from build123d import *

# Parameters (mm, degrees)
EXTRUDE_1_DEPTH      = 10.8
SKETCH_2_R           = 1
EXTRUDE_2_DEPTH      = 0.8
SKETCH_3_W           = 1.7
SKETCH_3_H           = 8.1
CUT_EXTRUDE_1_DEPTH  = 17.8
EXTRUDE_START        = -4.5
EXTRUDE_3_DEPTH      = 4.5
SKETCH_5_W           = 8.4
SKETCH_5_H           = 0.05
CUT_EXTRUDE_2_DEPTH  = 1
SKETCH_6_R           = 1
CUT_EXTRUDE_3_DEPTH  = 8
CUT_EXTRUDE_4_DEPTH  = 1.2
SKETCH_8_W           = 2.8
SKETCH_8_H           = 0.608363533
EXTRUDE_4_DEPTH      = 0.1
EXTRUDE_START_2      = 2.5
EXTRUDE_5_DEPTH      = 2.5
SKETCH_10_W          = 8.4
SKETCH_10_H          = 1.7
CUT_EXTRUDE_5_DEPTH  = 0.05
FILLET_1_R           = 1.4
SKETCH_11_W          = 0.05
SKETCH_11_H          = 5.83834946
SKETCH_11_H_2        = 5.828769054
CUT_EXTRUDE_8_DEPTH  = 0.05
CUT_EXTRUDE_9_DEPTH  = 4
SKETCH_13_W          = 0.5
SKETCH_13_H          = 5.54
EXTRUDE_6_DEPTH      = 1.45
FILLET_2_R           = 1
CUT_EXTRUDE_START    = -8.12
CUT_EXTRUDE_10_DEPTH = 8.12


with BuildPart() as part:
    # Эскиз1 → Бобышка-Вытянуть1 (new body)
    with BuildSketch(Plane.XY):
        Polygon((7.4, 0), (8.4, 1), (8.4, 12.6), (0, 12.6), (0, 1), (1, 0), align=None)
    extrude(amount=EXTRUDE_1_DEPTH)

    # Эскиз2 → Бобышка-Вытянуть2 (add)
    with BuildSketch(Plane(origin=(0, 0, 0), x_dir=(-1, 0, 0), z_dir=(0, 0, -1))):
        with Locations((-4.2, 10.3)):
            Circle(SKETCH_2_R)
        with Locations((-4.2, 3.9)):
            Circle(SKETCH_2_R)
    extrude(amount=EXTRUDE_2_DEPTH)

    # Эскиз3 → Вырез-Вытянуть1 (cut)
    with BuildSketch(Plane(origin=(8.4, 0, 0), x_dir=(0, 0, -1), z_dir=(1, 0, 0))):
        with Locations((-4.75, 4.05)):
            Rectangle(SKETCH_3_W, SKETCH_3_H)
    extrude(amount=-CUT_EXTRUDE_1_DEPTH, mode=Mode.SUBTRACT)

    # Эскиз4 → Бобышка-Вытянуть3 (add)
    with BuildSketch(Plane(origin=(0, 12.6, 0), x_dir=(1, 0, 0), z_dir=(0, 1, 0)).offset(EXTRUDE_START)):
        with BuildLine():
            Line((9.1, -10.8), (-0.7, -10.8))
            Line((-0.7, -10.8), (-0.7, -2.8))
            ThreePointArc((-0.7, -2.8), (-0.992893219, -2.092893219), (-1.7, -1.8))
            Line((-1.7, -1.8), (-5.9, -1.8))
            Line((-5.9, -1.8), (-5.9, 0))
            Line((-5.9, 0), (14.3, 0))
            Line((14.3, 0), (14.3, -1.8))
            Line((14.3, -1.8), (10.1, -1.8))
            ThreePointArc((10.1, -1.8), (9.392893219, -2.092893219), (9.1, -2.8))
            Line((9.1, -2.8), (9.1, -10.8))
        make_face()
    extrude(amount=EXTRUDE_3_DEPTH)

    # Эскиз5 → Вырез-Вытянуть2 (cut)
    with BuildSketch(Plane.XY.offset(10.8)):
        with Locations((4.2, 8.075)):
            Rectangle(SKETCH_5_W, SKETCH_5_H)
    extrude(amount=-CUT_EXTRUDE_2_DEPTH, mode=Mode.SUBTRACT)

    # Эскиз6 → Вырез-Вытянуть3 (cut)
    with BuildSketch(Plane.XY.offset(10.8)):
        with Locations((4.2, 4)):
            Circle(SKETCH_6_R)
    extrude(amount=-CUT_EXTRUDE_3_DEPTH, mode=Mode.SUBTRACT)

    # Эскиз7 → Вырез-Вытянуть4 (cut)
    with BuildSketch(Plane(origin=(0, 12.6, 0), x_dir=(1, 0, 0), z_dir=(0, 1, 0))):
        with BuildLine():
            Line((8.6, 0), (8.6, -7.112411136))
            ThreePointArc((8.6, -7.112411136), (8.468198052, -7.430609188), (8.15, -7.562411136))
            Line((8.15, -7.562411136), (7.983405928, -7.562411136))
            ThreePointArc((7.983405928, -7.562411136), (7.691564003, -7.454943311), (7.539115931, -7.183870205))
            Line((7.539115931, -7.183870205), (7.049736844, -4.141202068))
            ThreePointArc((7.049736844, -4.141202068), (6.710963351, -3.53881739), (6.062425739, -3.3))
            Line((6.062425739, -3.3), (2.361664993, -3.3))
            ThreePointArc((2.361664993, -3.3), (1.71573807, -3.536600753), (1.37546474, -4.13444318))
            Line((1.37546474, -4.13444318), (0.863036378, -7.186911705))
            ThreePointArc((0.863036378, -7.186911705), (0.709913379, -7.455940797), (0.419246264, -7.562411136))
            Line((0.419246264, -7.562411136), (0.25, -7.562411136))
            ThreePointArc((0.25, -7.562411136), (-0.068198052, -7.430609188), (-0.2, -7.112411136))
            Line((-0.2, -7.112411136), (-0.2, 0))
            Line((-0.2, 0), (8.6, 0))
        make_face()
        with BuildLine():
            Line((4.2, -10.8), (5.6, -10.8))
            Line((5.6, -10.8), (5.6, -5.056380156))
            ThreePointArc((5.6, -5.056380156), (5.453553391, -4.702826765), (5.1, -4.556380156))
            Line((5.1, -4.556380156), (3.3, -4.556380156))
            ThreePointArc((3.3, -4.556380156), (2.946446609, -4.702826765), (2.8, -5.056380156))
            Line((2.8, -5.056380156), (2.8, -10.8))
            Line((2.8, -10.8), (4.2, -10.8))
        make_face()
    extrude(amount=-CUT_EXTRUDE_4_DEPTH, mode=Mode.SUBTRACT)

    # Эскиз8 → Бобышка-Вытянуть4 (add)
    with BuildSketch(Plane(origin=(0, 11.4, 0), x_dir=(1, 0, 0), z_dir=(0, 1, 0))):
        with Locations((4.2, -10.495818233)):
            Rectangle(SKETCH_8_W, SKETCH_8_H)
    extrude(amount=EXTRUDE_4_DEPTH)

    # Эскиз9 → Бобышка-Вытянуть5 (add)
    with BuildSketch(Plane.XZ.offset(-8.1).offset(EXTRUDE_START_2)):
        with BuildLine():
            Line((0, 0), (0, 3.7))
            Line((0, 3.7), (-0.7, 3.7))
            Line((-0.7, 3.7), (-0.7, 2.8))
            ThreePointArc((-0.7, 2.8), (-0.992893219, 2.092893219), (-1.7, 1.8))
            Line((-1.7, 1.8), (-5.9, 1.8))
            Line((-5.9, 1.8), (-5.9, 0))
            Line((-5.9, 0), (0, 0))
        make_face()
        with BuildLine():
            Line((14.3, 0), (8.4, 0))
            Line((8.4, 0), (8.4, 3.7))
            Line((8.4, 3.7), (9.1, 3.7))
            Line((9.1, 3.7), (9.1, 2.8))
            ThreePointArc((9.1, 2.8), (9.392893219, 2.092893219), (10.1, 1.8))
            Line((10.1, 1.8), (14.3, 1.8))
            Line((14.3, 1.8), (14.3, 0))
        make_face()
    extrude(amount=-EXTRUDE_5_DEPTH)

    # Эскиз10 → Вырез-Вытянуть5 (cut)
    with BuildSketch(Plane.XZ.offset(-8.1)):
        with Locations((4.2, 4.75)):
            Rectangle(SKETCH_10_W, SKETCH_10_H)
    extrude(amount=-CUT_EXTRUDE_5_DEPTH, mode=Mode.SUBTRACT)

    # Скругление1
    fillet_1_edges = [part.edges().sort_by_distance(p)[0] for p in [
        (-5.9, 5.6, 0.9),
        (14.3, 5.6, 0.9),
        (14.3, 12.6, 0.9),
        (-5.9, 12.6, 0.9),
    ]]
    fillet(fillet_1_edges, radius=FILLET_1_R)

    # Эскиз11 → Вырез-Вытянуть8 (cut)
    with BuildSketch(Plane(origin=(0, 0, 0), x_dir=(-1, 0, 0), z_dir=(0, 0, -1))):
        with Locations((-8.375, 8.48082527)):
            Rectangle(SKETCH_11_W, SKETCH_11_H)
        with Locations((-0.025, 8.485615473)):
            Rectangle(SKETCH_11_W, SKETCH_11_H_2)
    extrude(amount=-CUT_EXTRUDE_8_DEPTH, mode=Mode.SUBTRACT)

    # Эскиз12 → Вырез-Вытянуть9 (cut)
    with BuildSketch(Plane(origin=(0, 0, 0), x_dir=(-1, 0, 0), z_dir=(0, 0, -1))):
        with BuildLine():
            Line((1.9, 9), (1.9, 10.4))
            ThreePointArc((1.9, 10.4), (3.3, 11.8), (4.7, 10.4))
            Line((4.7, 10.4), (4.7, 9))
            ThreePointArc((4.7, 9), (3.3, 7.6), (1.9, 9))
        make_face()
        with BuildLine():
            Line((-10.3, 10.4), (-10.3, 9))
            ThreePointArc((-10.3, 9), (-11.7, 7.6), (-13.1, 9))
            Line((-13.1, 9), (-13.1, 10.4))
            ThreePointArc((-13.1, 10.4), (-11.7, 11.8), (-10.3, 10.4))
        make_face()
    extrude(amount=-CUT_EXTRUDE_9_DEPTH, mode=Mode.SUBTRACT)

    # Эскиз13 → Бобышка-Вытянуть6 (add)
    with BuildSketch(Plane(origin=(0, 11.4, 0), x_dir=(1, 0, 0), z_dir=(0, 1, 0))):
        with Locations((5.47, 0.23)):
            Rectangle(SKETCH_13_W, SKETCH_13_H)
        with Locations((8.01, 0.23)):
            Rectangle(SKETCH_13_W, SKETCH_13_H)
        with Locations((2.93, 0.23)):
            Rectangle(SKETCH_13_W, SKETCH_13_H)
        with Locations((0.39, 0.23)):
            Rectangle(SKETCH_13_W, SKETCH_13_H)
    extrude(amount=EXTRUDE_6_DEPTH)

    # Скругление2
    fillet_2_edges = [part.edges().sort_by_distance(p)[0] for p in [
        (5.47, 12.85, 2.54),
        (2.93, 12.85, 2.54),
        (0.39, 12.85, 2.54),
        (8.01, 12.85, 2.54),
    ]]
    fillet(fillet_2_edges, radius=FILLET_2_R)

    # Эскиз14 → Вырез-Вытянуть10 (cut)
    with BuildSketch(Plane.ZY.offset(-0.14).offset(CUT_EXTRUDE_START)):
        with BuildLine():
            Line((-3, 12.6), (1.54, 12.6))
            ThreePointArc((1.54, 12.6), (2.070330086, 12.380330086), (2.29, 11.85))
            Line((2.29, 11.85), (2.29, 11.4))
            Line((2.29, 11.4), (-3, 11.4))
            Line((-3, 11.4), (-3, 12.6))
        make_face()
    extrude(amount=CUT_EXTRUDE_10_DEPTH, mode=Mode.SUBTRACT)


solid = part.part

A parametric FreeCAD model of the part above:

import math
import FreeCAD as App
import Part
import Sketcher

V = App.Vector
Q = App.Units.Quantity


def edges_at(feature, points):
    """Names of the edges that pass closest to the given points."""
    edges = feature.Shape.Edges
    near = lambda p: min(range(len(edges)), key=lambda i: edges[i].distToShape(Part.Vertex(*p))[0])
    return sorted({f"Edge{near(p) + 1}" for p in points})

doc = App.newDocument("Part")
body = doc.addObject("PartDesign::Body", "Body")

# Sketch on XY plane
sketch1 = body.newObject("Sketcher::SketchObject", "Sketch")
sketch1.AttachmentSupport = (doc.getObject("XY_Plane"), [""])
sketch1.MapMode = "FlatFace"
sketch1.addGeometry([
    Part.LineSegment(V(7.4, 0, 0), V(8.4, 1, 0)),  # 0
    Part.LineSegment(V(8.4, 1, 0), V(8.4, 12.6, 0)),  # 1
    Part.LineSegment(V(8.4, 12.6, 0), V(0, 12.6, 0)),  # 2
    Part.LineSegment(V(0, 12.6, 0), V(0, 1, 0)),  # 3
    Part.LineSegment(V(0, 1, 0), V(1, 0, 0)),  # 4
    Part.LineSegment(V(1, 0, 0), V(7.4, 0, 0)),  # 5
], False)
sketch1.addConstraint([
    Sketcher.Constraint("Coincident", 0, 2, 1, 1),
    Sketcher.Constraint("Coincident", 1, 2, 2, 1),
    Sketcher.Constraint("Coincident", 2, 2, 3, 1),
    Sketcher.Constraint("Coincident", 3, 2, 4, 1),
    Sketcher.Constraint("Coincident", 4, 2, 5, 1),
    Sketcher.Constraint("Coincident", 5, 2, 0, 1),
    Sketcher.Constraint("Vertical", 1),
    Sketcher.Constraint("Horizontal", 2),
    Sketcher.Constraint("Vertical", 3),
    Sketcher.Constraint("Horizontal", 5),
    Sketcher.Constraint("PointOnObject", 2, 2, -2),
    Sketcher.Constraint("PointOnObject", 4, 2, -1),
    Sketcher.Constraint("Perpendicular", 0, 4),
    Sketcher.Constraint("Horizontal", 0, 2, 3, 2),
    Sketcher.Constraint("Equal", 0, 4),
    Sketcher.Constraint("DistanceX", 2, 2, 2, 1, Q("8.4 mm")),
    Sketcher.Constraint("DistanceX", 5, 1, 5, 2, Q("6.4 mm")),
    Sketcher.Constraint("DistanceY", 1, 1, 1, 2, Q("11.6 mm")),
])
pad1 = body.newObject("PartDesign::Pad", "Pad")
pad1.Profile = sketch1
pad1.Length = 10.8

# Sketch on XY plane
sketch2 = body.newObject("Sketcher::SketchObject", "Sketch001")
sketch2.AttachmentSupport = (doc.getObject("XY_Plane"), [""])
sketch2.MapMode = "FlatFace"
sketch2.addGeometry([
    Part.Circle(V(4.2, 10.3, 0), V(0, 0, 1), 1),
    Part.Circle(V(4.2, 3.9, 0), V(0, 0, 1), 1),
], False)
sketch2.addConstraint([
    Sketcher.Constraint("Equal", 0, 1),
    Sketcher.Constraint("Vertical", 0, 3, 1, 3),
    Sketcher.Constraint("Diameter", 0, Q("2 mm")),
    Sketcher.Constraint("DistanceX", -1, 1, 0, 3, Q("4.2 mm")),
    Sketcher.Constraint("DistanceY", -1, 1, 0, 3, Q("10.3 mm")),
    Sketcher.Constraint("DistanceY", -1, 1, 1, 3, Q("3.9 mm")),
])
pad2 = body.newObject("PartDesign::Pad", "Pad001")
pad2.Profile = sketch2
pad2.Length = 0.8
pad2.Reversed = True

# Sketch on YZ plane
sketch3 = body.newObject("Sketcher::SketchObject", "Sketch002")
sketch3.AttachmentSupport = (doc.getObject("YZ_Plane"), [""])
sketch3.MapMode = "FlatFace"
sketch3.AttachmentOffset = App.Placement(V(0, 0, 8.4), App.Rotation())
sketch3.addGeometry([
    Part.LineSegment(V(8.1, 5.6, 0), V(0, 5.6, 0)),
    Part.LineSegment(V(0, 5.6, 0), V(0, 3.9, 0)),
    Part.LineSegment(V(0, 3.9, 0), V(8.1, 3.9, 0)),
    Part.LineSegment(V(8.1, 3.9, 0), V(8.1, 5.6, 0)),
], False)
sketch3.addConstraint([
    Sketcher.Constraint("Coincident", 0, 2, 1, 1),
    Sketcher.Constraint("Coincident", 1, 2, 2, 1),
    Sketcher.Constraint("Coincident", 2, 2, 3, 1),
    Sketcher.Constraint("Coincident", 3, 2, 0, 1),
    Sketcher.Constraint("Horizontal", 0),
    Sketcher.Constraint("Vertical", 1),
    Sketcher.Constraint("Horizontal", 2),
    Sketcher.Constraint("Vertical", 3),
    Sketcher.Constraint("PointOnObject", 0, 2, -2),
    Sketcher.Constraint("DistanceX", 0, 2, 0, 1, Q("8.1 mm")),
    Sketcher.Constraint("DistanceY", 1, 2, 1, 1, Q("1.7 mm")),
    Sketcher.Constraint("DistanceY", -1, 1, 0, 2, Q("5.6 mm")),
])
pocket1 = body.newObject("PartDesign::Pocket", "Pocket")
pocket1.Profile = sketch3
pocket1.Length = 17.8

# Sketch on XZ plane
sketch4 = body.newObject("Sketcher::SketchObject", "Sketch003")
sketch4.AttachmentSupport = (doc.getObject("XZ_Plane"), [""])
sketch4.MapMode = "FlatFace"
sketch4.AttachmentOffset = App.Placement(V(0, 0, -8.1), App.Rotation())
sketch4.addGeometry([
    Part.LineSegment(V(-0.7, 10.8, 0), V(9.1, 10.8, 0)),  # 0
    Part.LineSegment(V(9.1, 10.8, 0), V(9.1, 2.8, 0)),  # 1
    Part.ArcOfCircle(Part.Circle(V(10.1, 2.8, 0), V(0, 0, 1), 1), math.radians(-180), math.radians(-90)),  # 2
    Part.LineSegment(V(10.1, 1.8, 0), V(14.3, 1.8, 0)),  # 3
    Part.LineSegment(V(14.3, 1.8, 0), V(14.3, 0, 0)),  # 4
    Part.LineSegment(V(14.3, 0, 0), V(-5.9, 0, 0)),  # 5
    Part.LineSegment(V(-5.9, 0, 0), V(-5.9, 1.8, 0)),  # 6
    Part.LineSegment(V(-5.9, 1.8, 0), V(-1.7, 1.8, 0)),  # 7
    Part.ArcOfCircle(Part.Circle(V(-1.7, 2.8, 0), V(0, 0, 1), 1), math.radians(-90), math.radians(0)),  # 8
    Part.LineSegment(V(-0.7, 2.8, 0), V(-0.7, 10.8, 0)),  # 9
], False)
sketch4.addConstraint([
    Sketcher.Constraint("Coincident", 0, 2, 1, 1),
    Sketcher.Constraint("Tangent", 1, 2, 2, 1),
    Sketcher.Constraint("Tangent", 2, 2, 3, 1),
    Sketcher.Constraint("Coincident", 3, 2, 4, 1),
    Sketcher.Constraint("Coincident", 4, 2, 5, 1),
    Sketcher.Constraint("Coincident", 5, 2, 6, 1),
    Sketcher.Constraint("Coincident", 6, 2, 7, 1),
    Sketcher.Constraint("Tangent", 7, 2, 8, 1),
    Sketcher.Constraint("Tangent", 8, 2, 9, 1),
    Sketcher.Constraint("Coincident", 9, 2, 0, 1),
    Sketcher.Constraint("Horizontal", 0),
    Sketcher.Constraint("Vertical", 1),
    Sketcher.Constraint("Horizontal", 3),
    Sketcher.Constraint("Vertical", 4),
    Sketcher.Constraint("Horizontal", 5),
    Sketcher.Constraint("Vertical", 6),
    Sketcher.Constraint("Horizontal", 7),
    Sketcher.Constraint("Vertical", 9),
    Sketcher.Constraint("Equal", 2, 8),
    Sketcher.Constraint("PointOnObject", 4, 2, -1),
    Sketcher.Constraint("Horizontal", 2, 3, 8, 3),
    Sketcher.Constraint("Equal", 3, 7),
    Sketcher.Constraint("Radius", 2, Q("1 mm")),
    Sketcher.Constraint("DistanceY", 1, 2, 1, 1, Q("8 mm")),
    Sketcher.Constraint("DistanceX", 0, 1, 0, 2, Q("9.8 mm")),
    Sketcher.Constraint("DistanceX", 3, 1, 3, 2, Q("4.2 mm")),
    Sketcher.Constraint("DistanceY", 4, 2, 4, 1, Q("1.8 mm")),
    Sketcher.Constraint("DistanceX", -1, 1, 2, 3, Q("10.1 mm")),
])
pad3 = body.newObject("PartDesign::Pad", "Pad002")
pad3.Profile = sketch4
pad3.Length = 4.5
pad3.Reversed = True

# Sketch on XY plane
sketch5 = body.newObject("Sketcher::SketchObject", "Sketch004")
sketch5.AttachmentSupport = (doc.getObject("XY_Plane"), [""])
sketch5.MapMode = "FlatFace"
sketch5.AttachmentOffset = App.Placement(V(0, 0, 10.8), App.Rotation())
sketch5.addGeometry([
    Part.LineSegment(V(0, 8.1, 0), V(0, 8.05, 0)),
    Part.LineSegment(V(0, 8.05, 0), V(8.4, 8.05, 0)),
    Part.LineSegment(V(8.4, 8.05, 0), V(8.4, 8.1, 0)),
    Part.LineSegment(V(8.4, 8.1, 0), V(0, 8.1, 0)),
], False)
sketch5.addConstraint([
    Sketcher.Constraint("Coincident", 0, 2, 1, 1),
    Sketcher.Constraint("Coincident", 1, 2, 2, 1),
    Sketcher.Constraint("Coincident", 2, 2, 3, 1),
    Sketcher.Constraint("Coincident", 3, 2, 0, 1),
    Sketcher.Constraint("Vertical", 0),
    Sketcher.Constraint("Horizontal", 1),
    Sketcher.Constraint("Vertical", 2),
    Sketcher.Constraint("Horizontal", 3),
    Sketcher.Constraint("PointOnObject", 0, 2, -2),
    Sketcher.Constraint("DistanceX", 1, 1, 1, 2, Q("8.4 mm")),
    Sketcher.Constraint("DistanceY", 0, 2, 0, 1, Q("0.05 mm")),
    Sketcher.Constraint("DistanceY", -1, 1, 2, 2, Q("8.1 mm")),
])
pocket2 = body.newObject("PartDesign::Pocket", "Pocket001")
pocket2.Profile = sketch5
pocket2.Length = 1

# Sketch on XY plane
sketch6 = body.newObject("Sketcher::SketchObject", "Sketch005")
sketch6.AttachmentSupport = (doc.getObject("XY_Plane"), [""])
sketch6.MapMode = "FlatFace"
sketch6.AttachmentOffset = App.Placement(V(0, 0, 10.8), App.Rotation())
sketch6.addGeometry(Part.Circle(V(4.2, 4, 0), V(0, 0, 1), 1), False)
sketch6.addConstraint([
    Sketcher.Constraint("Diameter", 0, Q("2 mm")),
    Sketcher.Constraint("DistanceY", -1, 1, 0, 3, Q("4 mm")),
    Sketcher.Constraint("DistanceX", -1, 1, 0, 3, Q("4.2 mm")),
])
pocket3 = body.newObject("PartDesign::Pocket", "Pocket002")
pocket3.Profile = sketch6
pocket3.Length = 8

# Sketch on XZ plane
sketch7 = body.newObject("Sketcher::SketchObject", "Sketch006")
sketch7.AttachmentSupport = (doc.getObject("XZ_Plane"), [""])
sketch7.MapMode = "FlatFace"
sketch7.AttachmentOffset = App.Placement(V(0, 0, -12.6), App.Rotation())
sketch7.addGeometry([
    Part.LineSegment(V(8.6, 7.11, 0), V(8.6, 0, 0)),  # 0
    Part.LineSegment(V(8.6, 0, 0), V(-0.2, 0, 0)),  # 1
    Part.LineSegment(V(-0.2, 0, 0), V(-0.2, 7.11, 0)),  # 2
    Part.ArcOfCircle(Part.Circle(V(0.25, 7.11, 0), V(0, 0, 1), 0.45), math.radians(90), math.radians(180)),  # 3
    Part.LineSegment(V(0.25, 7.56, 0), V(0.42, 7.56, 0)),  # 4
    Part.ArcOfCircle(Part.Circle(V(0.42, 7.11, 0), V(0, 0, 1), 0.45), math.radians(10), math.radians(90)),  # 5
    Part.LineSegment(V(0.86, 7.19, 0), V(1.38, 4.13, 0)),  # 6
    Part.ArcOfCircle(Part.Circle(V(2.36, 4.3, 0), V(0, 0, 1), 1), math.radians(-170), math.radians(-90)),  # 7
    Part.LineSegment(V(2.36, 3.3, 0), V(6.06, 3.3, 0)),  # 8
    Part.ArcOfCircle(Part.Circle(V(6.06, 4.3, 0), V(0, 0, 1), 1), math.radians(-90), math.radians(-9)),  # 9
    Part.LineSegment(V(7.05, 4.14, 0), V(7.54, 7.18, 0)),  # 10
    Part.ArcOfCircle(Part.Circle(V(7.98, 7.11, 0), V(0, 0, 1), 0.45), math.radians(90), math.radians(171)),  # 11
    Part.LineSegment(V(7.98, 7.56, 0), V(8.15, 7.56, 0)),  # 12
    Part.ArcOfCircle(Part.Circle(V(8.15, 7.11, 0), V(0, 0, 1), 0.45), math.radians(0), math.radians(90)),  # 13
    Part.LineSegment(V(5.6, 10.8, 0), V(5.6, 5.06, 0)),  # 14
    Part.ArcOfCircle(Part.Circle(V(5.1, 5.06, 0), V(0, 0, 1), 0.5), math.radians(-90), math.radians(0)),  # 15
    Part.LineSegment(V(5.1, 4.56, 0), V(3.3, 4.56, 0)),  # 16
    Part.ArcOfCircle(Part.Circle(V(3.3, 5.06, 0), V(0, 0, 1), 0.5), math.radians(180), math.radians(270)),  # 17
    Part.LineSegment(V(2.8, 5.06, 0), V(2.8, 10.8, 0)),  # 18
    Part.LineSegment(V(2.8, 10.8, 0), V(5.6, 10.8, 0)),  # 19
], False)
sketch7.addConstraint([
    Sketcher.Constraint("Coincident", 0, 2, 1, 1),
    Sketcher.Constraint("Coincident", 1, 2, 2, 1),
    Sketcher.Constraint("Tangent", 2, 2, 3, 2),
    Sketcher.Constraint("Tangent", 3, 1, 4, 1),
    Sketcher.Constraint("Tangent", 4, 2, 5, 2),
    Sketcher.Constraint("Tangent", 5, 1, 6, 1),
    Sketcher.Constraint("Tangent", 6, 2, 7, 1),
    Sketcher.Constraint("Tangent", 7, 2, 8, 1),
    Sketcher.Constraint("Tangent", 8, 2, 9, 1),
    Sketcher.Constraint("Tangent", 9, 2, 10, 1),
    Sketcher.Constraint("Tangent", 10, 2, 11, 2),
    Sketcher.Constraint("Tangent", 11, 1, 12, 1),
    Sketcher.Constraint("Tangent", 12, 2, 13, 2),
    Sketcher.Constraint("Tangent", 13, 1, 0, 1),
    Sketcher.Constraint("Tangent", 14, 2, 15, 2),
    Sketcher.Constraint("Tangent", 15, 1, 16, 1),
    Sketcher.Constraint("Tangent", 16, 2, 17, 2),
    Sketcher.Constraint("Tangent", 17, 1, 18, 1),
    Sketcher.Constraint("Coincident", 18, 2, 19, 1),
    Sketcher.Constraint("Coincident", 19, 2, 14, 1),
    Sketcher.Constraint("Vertical", 0),
    Sketcher.Constraint("Horizontal", 1),
    Sketcher.Constraint("Vertical", 2),
    Sketcher.Constraint("Horizontal", 4),
    Sketcher.Constraint("Horizontal", 8),
    Sketcher.Constraint("Horizontal", 12),
    Sketcher.Constraint("Vertical", 14),
    Sketcher.Constraint("Horizontal", 16),
    Sketcher.Constraint("Vertical", 18),
    Sketcher.Constraint("Horizontal", 19),
    Sketcher.Constraint("Equal", 3, 5),
    Sketcher.Constraint("Equal", 7, 9),
    Sketcher.Constraint("Equal", 5, 11),
    Sketcher.Constraint("Equal", 11, 13),
    Sketcher.Constraint("Equal", 15, 17),
    Sketcher.Constraint("PointOnObject", 0, 2, -1),
    Sketcher.Constraint("Horizontal", 5, 3, 11, 3),
    Sketcher.Constraint("Radius", 7, Q("1 mm")),
    Sketcher.Constraint("Radius", 15, Q("0.5 mm")),
    Sketcher.Constraint("Radius", 3, Q("0.45 mm")),
    Sketcher.Constraint("DistanceX", 1, 2, 1, 1, Q("8.8 mm")),
    Sketcher.Constraint("DistanceX", 16, 2, 16, 1, Q("1.8 mm")),
    Sketcher.Constraint("DistanceY", -1, 1, 7, 3, Q("4.3 mm")),
    Sketcher.Constraint("DistanceX", -1, 1, 15, 3, Q("5.1 mm")),
    Sketcher.Constraint("DistanceX", -1, 1, 0, 2, Q("8.6 mm")),
    Sketcher.Constraint("DistanceY", -1, 1, 18, 2, Q("10.8 mm")),
    Sketcher.Constraint("DistanceX", 8, 1, 8, 2, Q("3.700761 mm")),
    Sketcher.Constraint("DistanceY", 0, 2, 0, 1, Q("7.112411 mm")),
    Sketcher.Constraint("DistanceY", 14, 2, 14, 1, Q("5.74362 mm")),
    Sketcher.Constraint("DistanceY", 5, 3, 5, 1, Q("0.074501 mm")),
    Sketcher.Constraint("DistanceX", 4, 1, 4, 2, Q("0.169246 mm")),
    Sketcher.Constraint("DistanceX", 12, 1, 12, 2, Q("0.166594 mm")),
])
pocket4 = body.newObject("PartDesign::Pocket", "Pocket003")
pocket4.Profile = sketch7
pocket4.Length = 1.2
pocket4.Reversed = True

# Sketch on XZ plane
sketch8 = body.newObject("Sketcher::SketchObject", "Sketch007")
sketch8.AttachmentSupport = (doc.getObject("XZ_Plane"), [""])
sketch8.MapMode = "FlatFace"
sketch8.AttachmentOffset = App.Placement(V(0, 0, -11.4), App.Rotation())
sketch8.addGeometry([
    Part.LineSegment(V(2.8, 10.2, 0), V(2.8, 10.8, 0)),
    Part.LineSegment(V(2.8, 10.8, 0), V(5.6, 10.8, 0)),
    Part.LineSegment(V(5.6, 10.8, 0), V(5.6, 10.2, 0)),
    Part.LineSegment(V(5.6, 10.2, 0), V(2.8, 10.2, 0)),
], False)
sketch8.addConstraint([
    Sketcher.Constraint("Coincident", 0, 2, 1, 1),
    Sketcher.Constraint("Coincident", 1, 2, 2, 1),
    Sketcher.Constraint("Coincident", 2, 2, 3, 1),
    Sketcher.Constraint("Coincident", 3, 2, 0, 1),
    Sketcher.Constraint("Vertical", 0),
    Sketcher.Constraint("Horizontal", 1),
    Sketcher.Constraint("Vertical", 2),
    Sketcher.Constraint("Horizontal", 3),
    Sketcher.Constraint("DistanceX", 1, 1, 1, 2, Q("2.8 mm")),
    Sketcher.Constraint("DistanceX", -1, 1, 0, 2, Q("2.8 mm")),
    Sketcher.Constraint("DistanceY", -1, 1, 0, 2, Q("10.8 mm")),
    Sketcher.Constraint("DistanceY", 0, 1, 0, 2, Q("0.608364 mm")),
])
pad4 = body.newObject("PartDesign::Pad", "Pad003")
pad4.Profile = sketch8
pad4.Length = 0.1
pad4.Reversed = True

# Sketch on XZ plane
sketch9 = body.newObject("Sketcher::SketchObject", "Sketch008")
sketch9.AttachmentSupport = (doc.getObject("XZ_Plane"), [""])
sketch9.MapMode = "FlatFace"
sketch9.AttachmentOffset = App.Placement(V(0, 0, -5.6), App.Rotation())
sketch9.addGeometry([
    Part.LineSegment(V(0, 0, 0), V(0, 3.7, 0)),  # 0
    Part.LineSegment(V(0, 3.7, 0), V(-0.7, 3.7, 0)),  # 1
    Part.LineSegment(V(-0.7, 3.7, 0), V(-0.7, 2.8, 0)),  # 2
    Part.ArcOfCircle(Part.Circle(V(-1.7, 2.8, 0), V(0, 0, 1), 1), math.radians(-90), math.radians(0)),  # 3
    Part.LineSegment(V(-1.7, 1.8, 0), V(-5.9, 1.8, 0)),  # 4
    Part.LineSegment(V(-5.9, 1.8, 0), V(-5.9, 0, 0)),  # 5
    Part.LineSegment(V(-5.9, 0, 0), V(0, 0, 0)),  # 6
    Part.LineSegment(V(8.4, 0, 0), V(14.3, 0, 0)),  # 7
    Part.LineSegment(V(14.3, 0, 0), V(14.3, 1.8, 0)),  # 8
    Part.LineSegment(V(14.3, 1.8, 0), V(10.1, 1.8, 0)),  # 9
    Part.ArcOfCircle(Part.Circle(V(10.1, 2.8, 0), V(0, 0, 1), 1), math.radians(-180), math.radians(-90)),  # 10
    Part.LineSegment(V(9.1, 2.8, 0), V(9.1, 3.7, 0)),  # 11
    Part.LineSegment(V(9.1, 3.7, 0), V(8.4, 3.7, 0)),  # 12
    Part.LineSegment(V(8.4, 3.7, 0), V(8.4, 0, 0)),  # 13
], False)
sketch9.addConstraint([
    Sketcher.Constraint("Coincident", 0, 2, 1, 1),
    Sketcher.Constraint("Coincident", 1, 2, 2, 1),
    Sketcher.Constraint("Tangent", 2, 2, 3, 2),
    Sketcher.Constraint("Tangent", 3, 1, 4, 1),
    Sketcher.Constraint("Coincident", 4, 2, 5, 1),
    Sketcher.Constraint("Coincident", 5, 2, 6, 1),
    Sketcher.Constraint("Coincident", 6, 2, 0, 1),
    Sketcher.Constraint("Coincident", 7, 2, 8, 1),
    Sketcher.Constraint("Coincident", 8, 2, 9, 1),
    Sketcher.Constraint("Tangent", 9, 2, 10, 2),
    Sketcher.Constraint("Tangent", 10, 1, 11, 1),
    Sketcher.Constraint("Coincident", 11, 2, 12, 1),
    Sketcher.Constraint("Coincident", 12, 2, 13, 1),
    Sketcher.Constraint("Coincident", 13, 2, 7, 1),
    Sketcher.Constraint("Vertical", 0),
    Sketcher.Constraint("Horizontal", 1),
    Sketcher.Constraint("Vertical", 2),
    Sketcher.Constraint("Horizontal", 4),
    Sketcher.Constraint("Vertical", 5),
    Sketcher.Constraint("Horizontal", 6),
    Sketcher.Constraint("Horizontal", 7),
    Sketcher.Constraint("Vertical", 8),
    Sketcher.Constraint("Horizontal", 9),
    Sketcher.Constraint("Vertical", 11),
    Sketcher.Constraint("Horizontal", 12),
    Sketcher.Constraint("Vertical", 13),
    Sketcher.Constraint("Coincident", 6, 2, -1, 1),
    Sketcher.Constraint("Equal", 3, 10),
    Sketcher.Constraint("PointOnObject", 7, 2, -1),
    Sketcher.Constraint("Horizontal", 3, 3, 10, 3),
    Sketcher.Constraint("Horizontal", 1, 2, 11, 2),
    Sketcher.Constraint("Equal", 6, 7),
    Sketcher.Constraint("Equal", 4, 9),
    Sketcher.Constraint("Radius", 3, Q("1 mm")),
    Sketcher.Constraint("DistanceX", 1, 2, 1, 1, Q("0.7 mm")),
    Sketcher.Constraint("DistanceX", 4, 2, 4, 1, Q("4.2 mm")),
    Sketcher.Constraint("DistanceY", 0, 1, 0, 2, Q("3.7 mm")),
    Sketcher.Constraint("DistanceY", 2, 2, 2, 1, Q("0.9 mm")),
    Sketcher.Constraint("DistanceX", 2, 2, 7, 2, Q("15 mm")),
])
pad5 = body.newObject("PartDesign::Pad", "Pad004")
pad5.Profile = sketch9
pad5.Length = 2.5
pad5.Reversed = True

# Sketch on XZ plane
sketch10 = body.newObject("Sketcher::SketchObject", "Sketch009")
sketch10.AttachmentSupport = (doc.getObject("XZ_Plane"), [""])
sketch10.MapMode = "FlatFace"
sketch10.AttachmentOffset = App.Placement(V(0, 0, -8.1), App.Rotation())
sketch10.addGeometry([
    Part.LineSegment(V(0, 5.6, 0), V(0, 3.9, 0)),
    Part.LineSegment(V(0, 3.9, 0), V(8.4, 3.9, 0)),
    Part.LineSegment(V(8.4, 3.9, 0), V(8.4, 5.6, 0)),
    Part.LineSegment(V(8.4, 5.6, 0), V(0, 5.6, 0)),
], False)
sketch10.addConstraint([
    Sketcher.Constraint("Coincident", 0, 2, 1, 1),
    Sketcher.Constraint("Coincident", 1, 2, 2, 1),
    Sketcher.Constraint("Coincident", 2, 2, 3, 1),
    Sketcher.Constraint("Coincident", 3, 2, 0, 1),
    Sketcher.Constraint("Vertical", 0),
    Sketcher.Constraint("Horizontal", 1),
    Sketcher.Constraint("Vertical", 2),
    Sketcher.Constraint("Horizontal", 3),
    Sketcher.Constraint("PointOnObject", 0, 2, -2),
    Sketcher.Constraint("DistanceX", 1, 1, 1, 2, Q("8.4 mm")),
    Sketcher.Constraint("DistanceY", 0, 2, 0, 1, Q("1.7 mm")),
    Sketcher.Constraint("DistanceY", -1, 1, 0, 2, Q("3.9 mm")),
])
pocket5 = body.newObject("PartDesign::Pocket", "Pocket004")
pocket5.Profile = sketch10
pocket5.Length = 0.05
doc.recompute()

fillet = body.newObject("PartDesign::Fillet", "Fillet")
fillet.Base = (pocket5, edges_at(pocket5, [
    (-5.9, 5.6, 0.9),
    (14.3, 5.6, 0.9),
    (14.3, 12.6, 0.9),
    (-5.9, 12.6, 0.9),
]))
fillet.Radius = 1.4

# Sketch on XY plane
sketch11 = body.newObject("Sketcher::SketchObject", "Sketch010")
sketch11.AttachmentSupport = (doc.getObject("XY_Plane"), [""])
sketch11.MapMode = "FlatFace"
sketch11.addGeometry([
    Part.LineSegment(V(8.4, 11.4, 0), V(8.4, 5.56, 0)),  # 0
    Part.LineSegment(V(8.4, 5.56, 0), V(8.35, 5.56, 0)),  # 1
    Part.LineSegment(V(8.35, 5.56, 0), V(8.35, 11.4, 0)),  # 2
    Part.LineSegment(V(8.35, 11.4, 0), V(8.4, 11.4, 0)),  # 3
    Part.LineSegment(V(0.05, 11.4, 0), V(0.05, 5.57, 0)),  # 4
    Part.LineSegment(V(0.05, 5.57, 0), V(0, 5.57, 0)),  # 5
    Part.LineSegment(V(0, 5.57, 0), V(0, 11.4, 0)),  # 6
    Part.LineSegment(V(0, 11.4, 0), V(0.05, 11.4, 0)),  # 7
], False)
sketch11.addConstraint([
    Sketcher.Constraint("Coincident", 0, 2, 1, 1),
    Sketcher.Constraint("Coincident", 1, 2, 2, 1),
    Sketcher.Constraint("Coincident", 2, 2, 3, 1),
    Sketcher.Constraint("Coincident", 3, 2, 0, 1),
    Sketcher.Constraint("Coincident", 4, 2, 5, 1),
    Sketcher.Constraint("Coincident", 5, 2, 6, 1),
    Sketcher.Constraint("Coincident", 6, 2, 7, 1),
    Sketcher.Constraint("Coincident", 7, 2, 4, 1),
    Sketcher.Constraint("Vertical", 0),
    Sketcher.Constraint("Horizontal", 1),
    Sketcher.Constraint("Vertical", 2),
    Sketcher.Constraint("Horizontal", 3),
    Sketcher.Constraint("Vertical", 4),
    Sketcher.Constraint("Horizontal", 5),
    Sketcher.Constraint("Vertical", 6),
    Sketcher.Constraint("Horizontal", 7),
    Sketcher.Constraint("PointOnObject", 5, 2, -2),
    Sketcher.Constraint("Horizontal", 3, 2, 6, 2),
    Sketcher.Constraint("Equal", 3, 5),
    Sketcher.Constraint("DistanceX", 1, 2, 1, 1, Q("0.05 mm")),
    Sketcher.Constraint("DistanceX", -1, 1, 0, 2, Q("8.4 mm")),
    Sketcher.Constraint("DistanceY", -1, 1, 2, 2, Q("11.4 mm")),
    Sketcher.Constraint("DistanceY", 0, 2, 0, 1, Q("5.838349 mm")),
    Sketcher.Constraint("DistanceY", 4, 2, 4, 1, Q("5.828769 mm")),
])
pocket6 = body.newObject("PartDesign::Pocket", "Pocket005")
pocket6.Profile = sketch11
pocket6.Length = 0.05
pocket6.Reversed = True

# Sketch on XY plane
sketch12 = body.newObject("Sketcher::SketchObject", "Sketch011")
sketch12.AttachmentSupport = (doc.getObject("XY_Plane"), [""])
sketch12.MapMode = "FlatFace"
sketch12.addGeometry([
    Part.LineSegment(V(-1.9, 10.4, 0), V(-1.9, 9, 0)),  # 0
    Part.ArcOfCircle(Part.Circle(V(-3.3, 9, 0), V(0, 0, 1), 1.4), math.radians(180), math.radians(360)),  # 1
    Part.LineSegment(V(-4.7, 9, 0), V(-4.7, 10.4, 0)),  # 2
    Part.ArcOfCircle(Part.Circle(V(-3.3, 10.4, 0), V(0, 0, 1), 1.4), math.radians(0), math.radians(180)),  # 3
    Part.LineSegment(V(10.3, 9, 0), V(10.3, 10.4, 0)),  # 4
    Part.ArcOfCircle(Part.Circle(V(11.7, 10.4, 0), V(0, 0, 1), 1.4), math.radians(0), math.radians(180)),  # 5
    Part.LineSegment(V(13.1, 10.4, 0), V(13.1, 9, 0)),  # 6
    Part.ArcOfCircle(Part.Circle(V(11.7, 9, 0), V(0, 0, 1), 1.4), math.radians(180), math.radians(360)),  # 7
], False)
sketch12.addConstraint([
    Sketcher.Constraint("Tangent", 0, 2, 1, 2),
    Sketcher.Constraint("Tangent", 1, 1, 2, 1),
    Sketcher.Constraint("Tangent", 2, 2, 3, 2),
    Sketcher.Constraint("Tangent", 3, 1, 0, 1),
    Sketcher.Constraint("Tangent", 4, 2, 5, 2),
    Sketcher.Constraint("Tangent", 5, 1, 6, 1),
    Sketcher.Constraint("Tangent", 6, 2, 7, 2),
    Sketcher.Constraint("Tangent", 7, 1, 4, 1),
    Sketcher.Constraint("Vertical", 0),
    Sketcher.Constraint("Vertical", 2),
    Sketcher.Constraint("Vertical", 4),
    Sketcher.Constraint("Vertical", 6),
    Sketcher.Constraint("Equal", 3, 5),
    Sketcher.Constraint("Horizontal", 3, 3, 5, 3),
    Sketcher.Constraint("Horizontal", 1, 3, 7, 3),
    Sketcher.Constraint("Radius", 1, Q("1.4 mm")),
    Sketcher.Constraint("DistanceY", 0, 2, 0, 1, Q("1.4 mm")),
    Sketcher.Constraint("DistanceY", -1, 1, 1, 3, Q("9 mm")),
    Sketcher.Constraint("DistanceX", 3, 3, 5, 3, Q("15 mm")),
    Sketcher.Constraint("DistanceX", 1, 3, -1, 1, Q("3.3 mm")),
])
pocket7 = body.newObject("PartDesign::Pocket", "Pocket006")
pocket7.Profile = sketch12
pocket7.Length = 4
pocket7.Reversed = True

# Sketch on XZ plane
sketch13 = body.newObject("Sketcher::SketchObject", "Sketch012")
sketch13.AttachmentSupport = (doc.getObject("XZ_Plane"), [""])
sketch13.MapMode = "FlatFace"
sketch13.AttachmentOffset = App.Placement(V(0, 0, -11.4), App.Rotation())
sketch13.addGeometry([
    Part.LineSegment(V(5.2, -3, 0), V(5.2, 2.5, 0)),  # 0
    Part.LineSegment(V(5.2, 2.5, 0), V(5.7, 2.5, 0)),  # 1
    Part.LineSegment(V(5.7, 2.5, 0), V(5.7, -3, 0)),  # 2
    Part.LineSegment(V(5.7, -3, 0), V(5.2, -3, 0)),  # 3
    Part.LineSegment(V(7.8, -3, 0), V(7.8, 2.5, 0)),  # 4
    Part.LineSegment(V(7.8, 2.5, 0), V(8.3, 2.5, 0)),  # 5
    Part.LineSegment(V(8.3, 2.5, 0), V(8.3, -3, 0)),  # 6
    Part.LineSegment(V(8.3, -3, 0), V(7.8, -3, 0)),  # 7
    Part.LineSegment(V(2.7, -3, 0), V(2.7, 2.5, 0)),  # 8
    Part.LineSegment(V(2.7, 2.5, 0), V(3.2, 2.5, 0)),  # 9
    Part.LineSegment(V(3.2, 2.5, 0), V(3.2, -3, 0)),  # 10
    Part.LineSegment(V(3.2, -3, 0), V(2.7, -3, 0)),  # 11
    Part.LineSegment(V(0.1, -3, 0), V(0.1, 2.5, 0)),  # 12
    Part.LineSegment(V(0.1, 2.5, 0), V(0.6, 2.5, 0)),  # 13
    Part.LineSegment(V(0.6, 2.5, 0), V(0.6, -3, 0)),  # 14
    Part.LineSegment(V(0.6, -3, 0), V(0.1, -3, 0)),  # 15
], False)
sketch13.addConstraint([
    Sketcher.Constraint("Coincident", 0, 2, 1, 1),
    Sketcher.Constraint("Coincident", 1, 2, 2, 1),
    Sketcher.Constraint("Coincident", 2, 2, 3, 1),
    Sketcher.Constraint("Coincident", 3, 2, 0, 1),
    Sketcher.Constraint("Coincident", 4, 2, 5, 1),
    Sketcher.Constraint("Coincident", 5, 2, 6, 1),
    Sketcher.Constraint("Coincident", 6, 2, 7, 1),
    Sketcher.Constraint("Coincident", 7, 2, 4, 1),
    Sketcher.Constraint("Coincident", 8, 2, 9, 1),
    Sketcher.Constraint("Coincident", 9, 2, 10, 1),
    Sketcher.Constraint("Coincident", 10, 2, 11, 1),
    Sketcher.Constraint("Coincident", 11, 2, 8, 1),
    Sketcher.Constraint("Coincident", 12, 2, 13, 1),
    Sketcher.Constraint("Coincident", 13, 2, 14, 1),
    Sketcher.Constraint("Coincident", 14, 2, 15, 1),
    Sketcher.Constraint("Coincident", 15, 2, 12, 1),
    Sketcher.Constraint("Vertical", 0),
    Sketcher.Constraint("Horizontal", 1),
    Sketcher.Constraint("Vertical", 2),
    Sketcher.Constraint("Horizontal", 3),
    Sketcher.Constraint("Vertical", 4),
    Sketcher.Constraint("Horizontal", 5),
    Sketcher.Constraint("Vertical", 6),
    Sketcher.Constraint("Horizontal", 7),
    Sketcher.Constraint("Vertical", 8),
    Sketcher.Constraint("Horizontal", 9),
    Sketcher.Constraint("Vertical", 10),
    Sketcher.Constraint("Horizontal", 11),
    Sketcher.Constraint("Vertical", 12),
    Sketcher.Constraint("Horizontal", 13),
    Sketcher.Constraint("Vertical", 14),
    Sketcher.Constraint("Horizontal", 15),
    Sketcher.Constraint("Horizontal", 1, 2, 4, 2),
    Sketcher.Constraint("Horizontal", 3, 2, 6, 2),
    Sketcher.Constraint("Horizontal", 5, 2, 8, 2),
    Sketcher.Constraint("Horizontal", 7, 2, 10, 2),
    Sketcher.Constraint("Horizontal", 9, 2, 12, 2),
    Sketcher.Constraint("Horizontal", 11, 2, 14, 2),
    Sketcher.Constraint("Equal", 3, 5),
    Sketcher.Constraint("Equal", 7, 9),
    Sketcher.Constraint("Equal", 11, 13),
    Sketcher.Constraint("DistanceX", 1, 1, 1, 2, Q("0.5 mm")),
    Sketcher.Constraint("DistanceY", 2, 2, -1, 1, Q("3 mm")),
    Sketcher.Constraint("DistanceY", 0, 1, 0, 2, Q("5.54 mm")),
    Sketcher.Constraint("DistanceX", -1, 1, 0, 2, Q("5.22 mm")),
    Sketcher.Constraint("DistanceX", -1, 1, 4, 2, Q("7.76 mm")),
    Sketcher.Constraint("DistanceX", -1, 1, 8, 2, Q("2.68 mm")),
    Sketcher.Constraint("DistanceX", -1, 1, 12, 2, Q("0.14 mm")),
])
pad6 = body.newObject("PartDesign::Pad", "Pad005")
pad6.Profile = sketch13
pad6.Length = 1.45
pad6.Reversed = True
doc.recompute()

fillet2 = body.newObject("PartDesign::Fillet", "Fillet001")
fillet2.Base = (pad6, edges_at(pad6, [
    (5.47, 12.85, 2.54),
    (2.93, 12.85, 2.54),
    (0.39, 12.85, 2.54),
    (8.01, 12.85, 2.54),
]))
fillet2.Radius = 1

# Sketch on YZ plane
sketch14 = body.newObject("Sketcher::SketchObject", "Sketch013")
sketch14.AttachmentSupport = (doc.getObject("YZ_Plane"), [""])
sketch14.MapMode = "FlatFace"
sketch14.AttachmentOffset = App.Placement(V(0, 0, 8.26), App.Rotation())
sketch14.addGeometry([
    Part.LineSegment(V(12.6, 1.54, 0), V(12.6, -3, 0)),  # 0
    Part.LineSegment(V(12.6, -3, 0), V(11.4, -3, 0)),  # 1
    Part.LineSegment(V(11.4, -3, 0), V(11.4, 2.29, 0)),  # 2
    Part.LineSegment(V(11.4, 2.29, 0), V(11.85, 2.29, 0)),  # 3
    Part.ArcOfCircle(Part.Circle(V(11.85, 1.54, 0), V(0, 0, 1), 0.75), math.radians(0), math.radians(90)),  # 4
], False)
sketch14.addConstraint([
    Sketcher.Constraint("Coincident", 0, 2, 1, 1),
    Sketcher.Constraint("Coincident", 1, 2, 2, 1),
    Sketcher.Constraint("Coincident", 2, 2, 3, 1),
    Sketcher.Constraint("Tangent", 3, 2, 4, 2),
    Sketcher.Constraint("Tangent", 4, 1, 0, 1),
    Sketcher.Constraint("Vertical", 0),
    Sketcher.Constraint("Horizontal", 1),
    Sketcher.Constraint("Vertical", 2),
    Sketcher.Constraint("Horizontal", 3),
    Sketcher.Constraint("Radius", 4, Q("0.75 mm")),
    Sketcher.Constraint("DistanceX", 1, 2, 1, 1, Q("1.2 mm")),
    Sketcher.Constraint("DistanceY", 0, 2, -1, 1, Q("3 mm")),
    Sketcher.Constraint("DistanceY", 0, 2, 0, 1, Q("4.54 mm")),
    Sketcher.Constraint("DistanceX", -1, 1, 0, 2, Q("12.6 mm")),
])
pocket8 = body.newObject("PartDesign::Pocket", "Pocket007")
pocket8.Profile = sketch14
pocket8.Length = 8.12

doc.recompute()
